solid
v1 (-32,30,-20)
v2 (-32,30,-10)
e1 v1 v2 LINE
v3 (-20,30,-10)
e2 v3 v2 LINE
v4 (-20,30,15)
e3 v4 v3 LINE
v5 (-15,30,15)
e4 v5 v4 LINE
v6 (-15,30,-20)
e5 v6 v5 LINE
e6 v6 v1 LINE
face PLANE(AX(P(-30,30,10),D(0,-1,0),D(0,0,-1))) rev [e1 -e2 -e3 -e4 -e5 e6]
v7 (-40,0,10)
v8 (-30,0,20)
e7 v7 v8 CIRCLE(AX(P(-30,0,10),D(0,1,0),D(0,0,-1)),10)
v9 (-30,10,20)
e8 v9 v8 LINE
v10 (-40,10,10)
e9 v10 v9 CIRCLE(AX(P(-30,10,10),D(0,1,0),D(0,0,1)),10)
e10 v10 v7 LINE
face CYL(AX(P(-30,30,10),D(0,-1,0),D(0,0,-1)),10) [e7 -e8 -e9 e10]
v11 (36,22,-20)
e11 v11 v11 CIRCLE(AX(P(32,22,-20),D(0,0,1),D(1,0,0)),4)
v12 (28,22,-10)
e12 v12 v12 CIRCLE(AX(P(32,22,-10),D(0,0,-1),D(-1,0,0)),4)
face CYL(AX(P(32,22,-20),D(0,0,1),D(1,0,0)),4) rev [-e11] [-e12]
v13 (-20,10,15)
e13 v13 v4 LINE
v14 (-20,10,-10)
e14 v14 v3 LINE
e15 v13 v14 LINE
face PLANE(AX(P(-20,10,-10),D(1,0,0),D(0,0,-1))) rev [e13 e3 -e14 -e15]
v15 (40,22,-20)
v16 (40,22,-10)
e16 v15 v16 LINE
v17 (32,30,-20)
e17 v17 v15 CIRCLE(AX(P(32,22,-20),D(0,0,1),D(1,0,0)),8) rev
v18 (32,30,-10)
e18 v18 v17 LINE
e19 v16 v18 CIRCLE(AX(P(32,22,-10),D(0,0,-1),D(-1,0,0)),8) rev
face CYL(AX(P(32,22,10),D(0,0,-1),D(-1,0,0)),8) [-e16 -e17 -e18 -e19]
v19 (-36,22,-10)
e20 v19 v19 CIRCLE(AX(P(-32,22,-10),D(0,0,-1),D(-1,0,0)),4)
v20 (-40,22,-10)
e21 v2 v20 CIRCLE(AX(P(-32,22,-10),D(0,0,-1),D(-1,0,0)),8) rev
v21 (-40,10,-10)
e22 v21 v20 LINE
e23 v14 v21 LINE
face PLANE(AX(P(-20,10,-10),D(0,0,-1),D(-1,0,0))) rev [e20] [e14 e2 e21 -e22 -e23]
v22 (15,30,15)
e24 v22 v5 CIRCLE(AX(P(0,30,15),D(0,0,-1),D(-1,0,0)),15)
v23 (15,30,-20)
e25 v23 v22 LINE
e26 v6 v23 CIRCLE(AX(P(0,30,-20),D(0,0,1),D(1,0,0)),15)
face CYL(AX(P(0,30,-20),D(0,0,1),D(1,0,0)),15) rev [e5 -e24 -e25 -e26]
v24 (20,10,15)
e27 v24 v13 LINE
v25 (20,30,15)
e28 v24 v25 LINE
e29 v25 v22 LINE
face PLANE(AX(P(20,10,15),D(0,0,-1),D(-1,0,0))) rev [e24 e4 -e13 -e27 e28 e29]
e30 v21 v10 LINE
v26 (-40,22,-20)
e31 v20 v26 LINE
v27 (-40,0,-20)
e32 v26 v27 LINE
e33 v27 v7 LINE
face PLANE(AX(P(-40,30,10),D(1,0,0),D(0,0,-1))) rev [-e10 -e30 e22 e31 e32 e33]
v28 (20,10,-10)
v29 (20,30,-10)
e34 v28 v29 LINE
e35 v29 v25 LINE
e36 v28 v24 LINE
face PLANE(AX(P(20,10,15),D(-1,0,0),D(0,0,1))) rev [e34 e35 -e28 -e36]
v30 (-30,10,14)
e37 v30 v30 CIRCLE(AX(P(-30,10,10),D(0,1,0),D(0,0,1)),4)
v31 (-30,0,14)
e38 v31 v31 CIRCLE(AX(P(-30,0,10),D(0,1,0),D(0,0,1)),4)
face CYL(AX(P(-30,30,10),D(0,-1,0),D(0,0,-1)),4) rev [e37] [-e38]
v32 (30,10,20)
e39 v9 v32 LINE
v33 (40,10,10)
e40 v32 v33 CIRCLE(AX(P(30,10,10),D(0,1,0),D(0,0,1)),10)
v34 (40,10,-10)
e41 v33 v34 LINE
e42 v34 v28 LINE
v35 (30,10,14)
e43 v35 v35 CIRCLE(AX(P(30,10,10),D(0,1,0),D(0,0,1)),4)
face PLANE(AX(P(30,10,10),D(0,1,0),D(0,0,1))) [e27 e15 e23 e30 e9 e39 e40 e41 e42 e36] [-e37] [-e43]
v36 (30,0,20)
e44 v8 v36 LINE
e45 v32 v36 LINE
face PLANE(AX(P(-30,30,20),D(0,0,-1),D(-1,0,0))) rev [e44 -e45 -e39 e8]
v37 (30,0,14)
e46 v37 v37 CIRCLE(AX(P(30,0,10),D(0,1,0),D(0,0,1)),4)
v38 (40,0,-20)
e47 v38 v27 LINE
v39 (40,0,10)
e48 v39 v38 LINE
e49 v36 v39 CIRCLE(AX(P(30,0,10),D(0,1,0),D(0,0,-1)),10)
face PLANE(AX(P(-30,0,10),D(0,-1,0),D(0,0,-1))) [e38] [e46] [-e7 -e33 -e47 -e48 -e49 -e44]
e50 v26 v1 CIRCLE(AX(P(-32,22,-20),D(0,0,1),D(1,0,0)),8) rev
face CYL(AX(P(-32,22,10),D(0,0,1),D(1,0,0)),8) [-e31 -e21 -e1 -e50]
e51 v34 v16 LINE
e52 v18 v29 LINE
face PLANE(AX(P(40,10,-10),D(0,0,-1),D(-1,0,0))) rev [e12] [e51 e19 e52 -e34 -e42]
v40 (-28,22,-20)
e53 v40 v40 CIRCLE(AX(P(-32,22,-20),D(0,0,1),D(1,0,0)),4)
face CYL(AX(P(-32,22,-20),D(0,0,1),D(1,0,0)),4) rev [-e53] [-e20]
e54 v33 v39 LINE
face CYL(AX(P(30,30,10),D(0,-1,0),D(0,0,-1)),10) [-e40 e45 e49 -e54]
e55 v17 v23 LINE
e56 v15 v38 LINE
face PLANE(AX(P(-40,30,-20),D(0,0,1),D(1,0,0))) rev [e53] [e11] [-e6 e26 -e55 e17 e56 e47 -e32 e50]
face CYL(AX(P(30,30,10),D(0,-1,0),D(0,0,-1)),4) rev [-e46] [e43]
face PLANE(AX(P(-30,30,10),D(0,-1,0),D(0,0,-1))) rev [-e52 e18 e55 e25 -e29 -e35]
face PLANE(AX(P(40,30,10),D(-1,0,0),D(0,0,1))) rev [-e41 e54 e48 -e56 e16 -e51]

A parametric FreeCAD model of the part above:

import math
import FreeCAD as App
import Part
import Sketcher
from FreeCAD import Vector


def edges_at(feature, points):
    """Names of the edges that pass closest to the given points."""
    edges = feature.Shape.Edges
    near = lambda p: min(range(len(edges)), key=lambda i: edges[i].distToShape(Part.Vertex(*p))[0])
    return sorted({f"Edge{near(p) + 1}" for p in points})

doc = App.newDocument("Part")
body = doc.addObject("PartDesign::Body", "Body")

# Sketch on XZ plane
sketch1 = body.newObject("Sketcher::SketchObject", "Sketch")
sketch1.AttachmentSupport = (doc.getObject("XZ_Plane"), [""])
sketch1.MapMode = "FlatFace"
sketch1.addGeometry([
    Part.LineSegment(Vector(-30, 20, 0), Vector(30, 20, 0)),  # 0
    Part.ArcOfCircle(Part.Circle(Vector(30, 10, 0), Vector(0, 0, 1), 10), math.radians(0), math.radians(90)),  # 1
    Part.LineSegment(Vector(40, 10, 0), Vector(40, -20, 0)),  # 2
    Part.LineSegment(Vector(40, -20, 0), Vector(-40, -20, 0)),  # 3
    Part.LineSegment(Vector(-40, -20, 0), Vector(-40, 10, 0)),  # 4
    Part.ArcOfCircle(Part.Circle(Vector(-30, 10, 0), Vector(0, 0, 1), 10), math.radians(90), math.radians(180)),  # 5
    Part.Circle(Vector(-30, 10, 0), Vector(0, 0, 1), 4),  # 6
    Part.Circle(Vector(30, 10, 0), Vector(0, 0, 1), 4),  # 7
], False)
sketch1.addConstraint([
    Sketcher.Constraint("Tangent", 0, 2, 1, 2),
    Sketcher.Constraint("Tangent", 1, 1, 2, 1),
    Sketcher.Constraint("Coincident", 2, 2, 3, 1),
    Sketcher.Constraint("Coincident", 3, 2, 4, 1),
    Sketcher.Constraint("Tangent", 4, 2, 5, 2),
    Sketcher.Constraint("Tangent", 5, 1, 0, 1),
    Sketcher.Constraint("Horizontal", 0),
    Sketcher.Constraint("Vertical", 2),
    Sketcher.Constraint("Horizontal", 3),
    Sketcher.Constraint("Vertical", 4),
    Sketcher.Constraint("Coincident", 6, 3, 5, 3),
    Sketcher.Constraint("Coincident", 7, 3, 1, 3),
    Sketcher.Constraint("Equal", 1, 5),
    Sketcher.Constraint("Equal", 6, 7),
    Sketcher.Constraint("Diameter", 6, 8.0),
    Sketcher.Constraint("Radius", 1, 10.0),
    Sketcher.Constraint("DistanceX", 0, 1, 0, 2, 60.0),
    Sketcher.Constraint("DistanceY", 2, 2, 2, 1, 30.0),
    Sketcher.Constraint("DistanceX", -1, 1, 1, 3, 30.0),
    Sketcher.Constraint("DistanceY", -1, 1, 1, 3, 10.0),
])
pad1 = body.newObject("PartDesign::Pad", "Pad")
pad1.Profile = sketch1
pad1.Length = 30
pad1.Reversed = True

# Sketch on XZ plane
sketch2 = body.newObject("Sketcher::SketchObject", "Sketch001")
sketch2.AttachmentSupport = (doc.getObject("XZ_Plane"), [""])
sketch2.MapMode = "FlatFace"
sketch2.AttachmentOffset = App.Placement(Vector(0, 0, -30), App.Rotation())
sketch2.addGeometry([
    Part.LineSegment(Vector(40, 10, 0), Vector(40, -10, 0)),  # 0
    Part.LineSegment(Vector(40, -10, 0), Vector(20, -10, 0)),  # 1
    Part.LineSegment(Vector(20, -10, 0), Vector(20, 15, 0)),  # 2
    Part.LineSegment(Vector(20, 15, 0), Vector(-20, 15, 0)),  # 3
    Part.LineSegment(Vector(-20, 15, 0), Vector(-20, -10, 0)),  # 4
    Part.LineSegment(Vector(-20, -10, 0), Vector(-40, -10, 0)),  # 5
    Part.LineSegment(Vector(-40, -10, 0), Vector(-40, 10, 0)),  # 6
    Part.ArcOfCircle(Part.Circle(Vector(-30, 10, 0), Vector(0, 0, 1), 10), math.radians(90), math.radians(180)),  # 7
    Part.LineSegment(Vector(-30, 20, 0), Vector(30, 20, 0)),  # 8
    Part.ArcOfCircle(Part.Circle(Vector(30, 10, 0), Vector(0, 0, 1), 10), math.radians(0), math.radians(90)),  # 9
], False)
sketch2.addConstraint([
    Sketcher.Constraint("Coincident", 0, 2, 1, 1),
    Sketcher.Constraint("Coincident", 1, 2, 2, 1),
    Sketcher.Constraint("Coincident", 2, 2, 3, 1),
    Sketcher.Constraint("Coincident", 3, 2, 4, 1),
    Sketcher.Constraint("Coincident", 4, 2, 5, 1),
    Sketcher.Constraint("Coincident", 5, 2, 6, 1),
    Sketcher.Constraint("Tangent", 6, 2, 7, 2),
    Sketcher.Constraint("Tangent", 7, 1, 8, 1),
    Sketcher.Constraint("Tangent", 8, 2, 9, 2),
    Sketcher.Constraint("Tangent", 9, 1, 0, 1),
    Sketcher.Constraint("Vertical", 0),
    Sketcher.Constraint("Horizontal", 1),
    Sketcher.Constraint("Vertical", 2),
    Sketcher.Constraint("Horizontal", 3),
    Sketcher.Constraint("Vertical", 4),
    Sketcher.Constraint("Horizontal", 5),
    Sketcher.Constraint("Vertical", 6),
    Sketcher.Constraint("Horizontal", 8),
    Sketcher.Constraint("Equal", 7, 9),
    Sketcher.Constraint("Symmetric", 0, 2, 6, 2, -1, 1),
    Sketcher.Constraint("Symmetric", 1, 2, 4, 2, -2),
    Sketcher.Constraint("Equal", 5, 0),
    Sketcher.Constraint("Radius", 7, 10.0),
    Sketcher.Constraint("DistanceX", 1, 2, 1, 1, 20.0),
    Sketcher.Constraint("DistanceX", 3, 2, 3, 1, 40.0),
    Sketcher.Constraint("DistanceY", 2, 1, 2, 2, 25.0),
])
pocket1 = body.newObject("PartDesign::Pocket", "Pocket")
pocket1.Profile = sketch2
pocket1.Length = 20
pocket1.Reversed = True
doc.recompute()

fillet = body.newObject("PartDesign::Fillet", "Fillet")
fillet.Base = (pocket1, edges_at(pocket1, [(-40, 30, -15), (40, 30, -15)]))
fillet.Radius = 8

# Sketch on XY plane
sketch3 = body.newObject("Sketcher::SketchObject", "Sketch002")
sketch3.AttachmentSupport = (doc.getObject("XY_Plane"), [""])
sketch3.MapMode = "FlatFace"
sketch3.AttachmentOffset = App.Placement(Vector(0, 0, 20), App.Rotation())
sketch3.addGeometry([
    Part.Circle(Vector(-32, 22, 0), Vector(0, 0, 1), 4),
    Part.Circle(Vector(32, 22, 0), Vector(0, 0, 1), 4),
    Part.LineSegment(Vector(15, 30, 0), Vector(-15, 30, 0)),
    Part.ArcOfCircle(Part.Circle(Vector(0, 30, 0), Vector(0, 0, 1), 15), math.radians(180), math.radians(360)),
], False)
sketch3.addConstraint([
    Sketcher.Constraint("Coincident", 2, 1, 3, 2),
    Sketcher.Constraint("Coincident", 3, 1, 2, 2),
    Sketcher.Constraint("Horizontal", 2),
    Sketcher.Constraint("Equal", 0, 1),
    Sketcher.Constraint("Symmetric", 0, 3, 1, 3, -2),
    Sketcher.Constraint("PointOnObject", 3, 3, -2),
    Sketcher.Constraint("Horizontal", 3, 3, 2, 1),
    Sketcher.Constraint("Diameter", 0, 8.0),
    Sketcher.Constraint("Radius", 3, 15.0),
    Sketcher.Constraint("DistanceX", 0, 3, -1, 1, 32.0),
    Sketcher.Constraint("DistanceY", -1, 1, 0, 3, 22.0),
    Sketcher.Constraint("DistanceY", -1, 1, 3, 3, 30.0),
])
pocket2 = body.newObject("PartDesign::Pocket", "Pocket001")
pocket2.Profile = sketch3
pocket2.Type = "ThroughAll"

doc.recompute()
